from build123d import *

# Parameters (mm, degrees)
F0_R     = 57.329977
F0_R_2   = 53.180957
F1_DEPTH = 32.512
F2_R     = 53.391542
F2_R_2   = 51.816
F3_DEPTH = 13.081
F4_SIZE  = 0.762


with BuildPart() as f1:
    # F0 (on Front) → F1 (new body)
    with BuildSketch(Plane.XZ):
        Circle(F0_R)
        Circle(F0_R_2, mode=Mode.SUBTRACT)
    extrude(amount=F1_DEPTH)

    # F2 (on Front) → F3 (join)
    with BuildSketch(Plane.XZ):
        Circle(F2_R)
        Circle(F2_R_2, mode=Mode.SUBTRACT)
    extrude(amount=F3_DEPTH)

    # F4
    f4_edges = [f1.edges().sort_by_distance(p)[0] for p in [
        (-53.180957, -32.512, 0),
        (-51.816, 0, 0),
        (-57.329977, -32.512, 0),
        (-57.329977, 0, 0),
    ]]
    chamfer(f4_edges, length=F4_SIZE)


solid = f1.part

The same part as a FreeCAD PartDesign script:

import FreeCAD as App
import Part
import Sketcher
Q = App.Units.Quantity


def edges_at(feature, points):
    """Names of the edges that pass closest to the given points."""
    edges = feature.Shape.Edges
    near = lambda p: min(range(len(edges)), key=lambda i: edges[i].distToShape(Part.Vertex(*p))[0])
    return sorted({f"Edge{near(p) + 1}" for p in points})

doc = App.newDocument("Part")
params = doc.addObject("Spreadsheet::Sheet", "Params")
for row, (alias, value) in enumerate([
    ("pad1_length", "1.28 in"),
    ("sketch2_diameter", "4.08 in"),
    ("pad2_length", "0.515 in"),
    ("chamfer_size", "0.03 in"),
], start=1):
    params.set(f"A{row}", alias)
    params.set(f"B{row}", "=" + value)
    params.setAlias(f"B{row}", alias)

body = doc.addObject("PartDesign::Body", "Body")

sketch1 = body.newObject("Sketcher::SketchObject", "Sketch")
sketch1.AttachmentSupport = (doc.getObject("XZ_Plane"), [""])
sketch1.MapMode = "FlatFace"
sketch1.addGeometry(Part.Circle(App.Vector(0, 0, 0), App.Vector(0, 0, 1), 57), False)
sketch1.addGeometry(Part.Circle(App.Vector(0, 0, 0), App.Vector(0, 0, 1), 53), False)
sketch1.addConstraint(Sketcher.Constraint("Coincident", 0, 3, -1, 1))
sketch1.addConstraint(Sketcher.Constraint("Coincident", 1, 3, -1, 1))
sketch1.addConstraint(Sketcher.Constraint("Diameter", 0, 114.659954))
sketch1.addConstraint(Sketcher.Constraint("Diameter", 1, 106.361914))
pad1 = body.newObject("PartDesign::Pad", "Pad")
pad1.Profile = sketch1
pad1.setExpression("Length", "Params.pad1_length")

sketch2 = body.newObject("Sketcher::SketchObject", "Sketch001")
sketch2.AttachmentSupport = (doc.getObject("XZ_Plane"), [""])
sketch2.MapMode = "FlatFace"
sketch2.addGeometry(Part.Circle(App.Vector(0, 0, 0), App.Vector(0, 0, 1), 53), False)
sketch2.addGeometry(Part.Circle(App.Vector(0, 0, 0), App.Vector(0, 0, 1), 52), False)
sketch2.addConstraint(Sketcher.Constraint("Coincident", 0, 3, -1, 1))
sketch2.addConstraint(Sketcher.Constraint("Coincident", 1, 3, -1, 1))
sketch2.addConstraint(Sketcher.Constraint("Diameter", 1, Q("4.08 in")))
sketch2.addConstraint(Sketcher.Constraint("Diameter", 0, 106.783084))
sketch2.setExpression("Constraints[2]", "Params.sketch2_diameter")
pad2 = body.newObject("PartDesign::Pad", "Pad001")
pad2.Profile = sketch2
pad2.setExpression("Length", "Params.pad2_length")
doc.recompute()

chamfer = body.newObject("PartDesign::Chamfer", "Chamfer")
chamfer.Base = (pad2, edges_at(pad2, [
    (-53.181, -32.512, 0),
    (-51.816, 0, 0),
    (-57.33, -32.512, 0),
    (-57.33, 0, 0),
]))
chamfer.setExpression("Size", "Params.chamfer_size")

doc.recompute()
